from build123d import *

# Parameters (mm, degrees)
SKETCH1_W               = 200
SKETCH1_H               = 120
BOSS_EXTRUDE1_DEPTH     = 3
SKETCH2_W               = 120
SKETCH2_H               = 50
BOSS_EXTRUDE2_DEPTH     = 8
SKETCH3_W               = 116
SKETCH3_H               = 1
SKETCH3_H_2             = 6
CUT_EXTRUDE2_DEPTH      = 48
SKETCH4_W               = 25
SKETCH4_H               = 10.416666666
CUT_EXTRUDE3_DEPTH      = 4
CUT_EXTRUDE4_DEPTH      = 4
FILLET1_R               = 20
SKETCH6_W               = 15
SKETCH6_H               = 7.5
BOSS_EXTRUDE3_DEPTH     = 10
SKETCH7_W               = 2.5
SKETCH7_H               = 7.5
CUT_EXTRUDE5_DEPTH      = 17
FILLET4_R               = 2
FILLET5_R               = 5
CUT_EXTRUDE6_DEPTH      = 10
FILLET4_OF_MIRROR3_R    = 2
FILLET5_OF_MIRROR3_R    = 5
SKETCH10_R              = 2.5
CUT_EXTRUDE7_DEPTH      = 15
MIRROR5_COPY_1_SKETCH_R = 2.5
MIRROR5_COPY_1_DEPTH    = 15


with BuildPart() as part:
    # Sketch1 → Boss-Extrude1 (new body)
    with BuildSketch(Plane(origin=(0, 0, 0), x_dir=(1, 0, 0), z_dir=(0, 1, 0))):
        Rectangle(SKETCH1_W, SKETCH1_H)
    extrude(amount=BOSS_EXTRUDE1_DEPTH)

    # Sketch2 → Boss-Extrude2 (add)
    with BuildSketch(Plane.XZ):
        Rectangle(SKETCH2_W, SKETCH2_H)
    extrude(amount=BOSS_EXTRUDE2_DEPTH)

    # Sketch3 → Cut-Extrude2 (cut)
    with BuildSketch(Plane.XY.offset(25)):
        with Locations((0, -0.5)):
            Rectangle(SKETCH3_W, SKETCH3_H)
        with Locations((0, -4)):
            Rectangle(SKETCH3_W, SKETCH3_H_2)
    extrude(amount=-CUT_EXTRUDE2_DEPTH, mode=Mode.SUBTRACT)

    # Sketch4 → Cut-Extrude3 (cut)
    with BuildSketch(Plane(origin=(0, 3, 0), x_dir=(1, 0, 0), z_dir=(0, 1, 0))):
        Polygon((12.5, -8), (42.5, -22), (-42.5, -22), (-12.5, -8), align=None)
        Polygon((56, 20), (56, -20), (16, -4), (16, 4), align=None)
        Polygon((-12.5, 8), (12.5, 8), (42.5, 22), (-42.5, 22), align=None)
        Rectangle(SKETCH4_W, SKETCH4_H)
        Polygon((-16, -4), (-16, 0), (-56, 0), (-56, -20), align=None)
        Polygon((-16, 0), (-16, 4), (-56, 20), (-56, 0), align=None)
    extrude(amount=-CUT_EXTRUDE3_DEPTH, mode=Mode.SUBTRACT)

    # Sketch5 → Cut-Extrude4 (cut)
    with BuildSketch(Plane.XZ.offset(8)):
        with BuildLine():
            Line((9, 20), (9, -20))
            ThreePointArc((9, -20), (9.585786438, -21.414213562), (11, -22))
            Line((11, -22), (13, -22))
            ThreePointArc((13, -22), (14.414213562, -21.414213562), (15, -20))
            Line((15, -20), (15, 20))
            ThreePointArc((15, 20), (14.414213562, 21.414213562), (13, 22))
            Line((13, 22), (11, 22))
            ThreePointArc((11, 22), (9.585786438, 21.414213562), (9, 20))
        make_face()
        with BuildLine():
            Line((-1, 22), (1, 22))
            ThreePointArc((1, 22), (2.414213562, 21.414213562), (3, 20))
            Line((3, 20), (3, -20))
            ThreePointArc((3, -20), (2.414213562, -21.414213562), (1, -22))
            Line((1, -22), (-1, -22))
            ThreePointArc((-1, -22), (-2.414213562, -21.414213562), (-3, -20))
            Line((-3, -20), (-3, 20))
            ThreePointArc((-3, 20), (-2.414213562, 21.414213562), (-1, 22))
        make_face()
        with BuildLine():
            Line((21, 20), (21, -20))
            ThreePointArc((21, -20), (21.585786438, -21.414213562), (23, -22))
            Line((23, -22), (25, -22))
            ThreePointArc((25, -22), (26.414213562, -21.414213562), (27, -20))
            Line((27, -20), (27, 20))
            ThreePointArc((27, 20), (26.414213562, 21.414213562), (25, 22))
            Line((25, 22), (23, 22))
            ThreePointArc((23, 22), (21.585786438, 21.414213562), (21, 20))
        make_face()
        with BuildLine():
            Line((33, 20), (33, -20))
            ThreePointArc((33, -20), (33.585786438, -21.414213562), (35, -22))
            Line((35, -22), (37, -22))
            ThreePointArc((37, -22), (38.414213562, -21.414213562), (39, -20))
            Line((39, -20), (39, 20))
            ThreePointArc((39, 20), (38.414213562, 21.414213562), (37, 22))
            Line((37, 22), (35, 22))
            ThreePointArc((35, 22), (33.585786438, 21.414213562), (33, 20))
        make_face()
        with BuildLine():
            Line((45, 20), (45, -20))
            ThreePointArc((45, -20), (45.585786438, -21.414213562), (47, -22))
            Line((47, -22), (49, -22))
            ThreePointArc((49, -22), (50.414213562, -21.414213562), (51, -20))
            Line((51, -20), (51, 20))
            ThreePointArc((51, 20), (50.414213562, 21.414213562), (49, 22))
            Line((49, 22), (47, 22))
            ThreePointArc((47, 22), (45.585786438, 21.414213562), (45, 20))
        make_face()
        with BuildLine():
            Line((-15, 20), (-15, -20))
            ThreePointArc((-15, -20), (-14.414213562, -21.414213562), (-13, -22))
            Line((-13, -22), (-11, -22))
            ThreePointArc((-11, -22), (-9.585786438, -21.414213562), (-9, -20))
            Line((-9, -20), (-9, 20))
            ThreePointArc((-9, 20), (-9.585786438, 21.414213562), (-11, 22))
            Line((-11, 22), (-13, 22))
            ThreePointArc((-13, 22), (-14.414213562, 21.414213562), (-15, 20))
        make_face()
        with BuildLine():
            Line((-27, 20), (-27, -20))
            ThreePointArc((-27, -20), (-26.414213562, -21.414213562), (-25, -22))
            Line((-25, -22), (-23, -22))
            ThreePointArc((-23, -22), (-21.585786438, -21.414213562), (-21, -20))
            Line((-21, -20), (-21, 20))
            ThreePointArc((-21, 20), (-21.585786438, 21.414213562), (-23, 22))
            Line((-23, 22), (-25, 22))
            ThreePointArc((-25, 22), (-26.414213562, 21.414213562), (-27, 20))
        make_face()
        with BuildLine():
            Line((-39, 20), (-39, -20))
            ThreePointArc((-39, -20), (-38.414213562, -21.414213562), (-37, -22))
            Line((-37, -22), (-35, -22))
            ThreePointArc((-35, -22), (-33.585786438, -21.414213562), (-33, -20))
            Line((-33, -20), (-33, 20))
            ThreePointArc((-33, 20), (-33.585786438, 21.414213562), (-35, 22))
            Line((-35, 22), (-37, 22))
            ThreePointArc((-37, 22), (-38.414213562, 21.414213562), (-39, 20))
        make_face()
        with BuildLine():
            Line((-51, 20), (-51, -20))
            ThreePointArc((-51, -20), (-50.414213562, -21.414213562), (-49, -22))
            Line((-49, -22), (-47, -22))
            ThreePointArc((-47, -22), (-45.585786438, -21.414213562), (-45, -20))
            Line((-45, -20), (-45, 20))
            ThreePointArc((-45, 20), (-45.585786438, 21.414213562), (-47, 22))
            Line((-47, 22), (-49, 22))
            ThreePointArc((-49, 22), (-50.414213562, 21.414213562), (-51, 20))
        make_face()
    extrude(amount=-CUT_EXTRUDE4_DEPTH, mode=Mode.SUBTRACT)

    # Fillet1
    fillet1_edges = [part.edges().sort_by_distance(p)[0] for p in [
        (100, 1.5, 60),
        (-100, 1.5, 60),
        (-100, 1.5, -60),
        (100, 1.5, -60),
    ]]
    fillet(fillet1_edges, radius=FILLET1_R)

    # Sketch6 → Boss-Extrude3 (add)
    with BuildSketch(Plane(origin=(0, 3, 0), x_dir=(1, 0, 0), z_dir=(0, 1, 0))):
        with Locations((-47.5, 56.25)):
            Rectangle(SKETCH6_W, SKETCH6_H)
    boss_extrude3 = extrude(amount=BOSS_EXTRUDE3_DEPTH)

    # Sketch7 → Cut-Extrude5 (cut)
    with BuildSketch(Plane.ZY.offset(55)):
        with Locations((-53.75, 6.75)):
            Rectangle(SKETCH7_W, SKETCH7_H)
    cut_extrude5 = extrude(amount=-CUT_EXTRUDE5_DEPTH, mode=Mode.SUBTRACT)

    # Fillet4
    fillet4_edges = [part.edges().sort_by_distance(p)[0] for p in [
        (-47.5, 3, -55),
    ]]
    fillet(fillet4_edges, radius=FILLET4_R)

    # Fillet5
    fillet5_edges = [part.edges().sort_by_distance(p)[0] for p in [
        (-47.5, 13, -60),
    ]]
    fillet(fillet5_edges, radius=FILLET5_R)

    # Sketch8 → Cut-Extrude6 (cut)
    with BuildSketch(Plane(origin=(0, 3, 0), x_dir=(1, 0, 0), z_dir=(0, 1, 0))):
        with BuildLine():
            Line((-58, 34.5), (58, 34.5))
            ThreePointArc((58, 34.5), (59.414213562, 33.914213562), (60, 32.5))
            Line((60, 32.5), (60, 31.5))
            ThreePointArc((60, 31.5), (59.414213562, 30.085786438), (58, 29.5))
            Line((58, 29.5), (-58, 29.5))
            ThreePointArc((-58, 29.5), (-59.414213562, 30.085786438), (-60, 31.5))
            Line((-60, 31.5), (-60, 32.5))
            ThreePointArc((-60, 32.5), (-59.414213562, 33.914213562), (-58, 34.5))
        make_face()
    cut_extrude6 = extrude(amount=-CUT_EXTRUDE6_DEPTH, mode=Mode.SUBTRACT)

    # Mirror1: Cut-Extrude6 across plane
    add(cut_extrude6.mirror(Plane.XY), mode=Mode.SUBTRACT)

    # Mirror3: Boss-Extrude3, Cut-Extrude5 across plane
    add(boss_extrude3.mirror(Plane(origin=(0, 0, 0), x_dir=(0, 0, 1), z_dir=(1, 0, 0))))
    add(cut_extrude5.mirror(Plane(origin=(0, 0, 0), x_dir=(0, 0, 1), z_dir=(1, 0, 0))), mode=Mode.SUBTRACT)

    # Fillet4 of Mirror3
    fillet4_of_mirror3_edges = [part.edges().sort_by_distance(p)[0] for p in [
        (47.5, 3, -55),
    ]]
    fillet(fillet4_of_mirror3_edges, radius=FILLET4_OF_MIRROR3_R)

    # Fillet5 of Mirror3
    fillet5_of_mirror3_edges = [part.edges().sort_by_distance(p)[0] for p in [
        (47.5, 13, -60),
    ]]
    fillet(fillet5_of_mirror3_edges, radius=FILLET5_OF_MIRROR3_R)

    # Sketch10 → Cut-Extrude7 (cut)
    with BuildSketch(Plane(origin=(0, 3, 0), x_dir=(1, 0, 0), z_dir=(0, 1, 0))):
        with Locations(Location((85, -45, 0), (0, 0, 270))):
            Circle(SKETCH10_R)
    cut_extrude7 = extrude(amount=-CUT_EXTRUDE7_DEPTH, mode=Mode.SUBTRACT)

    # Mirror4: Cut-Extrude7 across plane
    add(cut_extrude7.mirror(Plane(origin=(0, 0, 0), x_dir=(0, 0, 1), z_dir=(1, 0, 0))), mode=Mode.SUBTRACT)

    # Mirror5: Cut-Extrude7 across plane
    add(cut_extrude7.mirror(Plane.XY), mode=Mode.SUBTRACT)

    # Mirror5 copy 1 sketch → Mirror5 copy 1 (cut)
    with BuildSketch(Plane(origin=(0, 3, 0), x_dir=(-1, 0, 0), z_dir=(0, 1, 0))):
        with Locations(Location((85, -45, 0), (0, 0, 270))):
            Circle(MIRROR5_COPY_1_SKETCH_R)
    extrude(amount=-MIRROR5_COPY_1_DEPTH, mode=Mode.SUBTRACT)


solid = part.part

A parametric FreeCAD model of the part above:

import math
import FreeCAD as App
import Part
import Sketcher
from FreeCAD import Vector


def edges_at(feature, points):
    """Names of the edges that pass closest to the given points."""
    edges = feature.Shape.Edges
    near = lambda p: min(range(len(edges)), key=lambda i: edges[i].distToShape(Part.Vertex(*p))[0])
    return sorted({f"Edge{near(p) + 1}" for p in points})

doc = App.newDocument("Part")
params = doc.addObject("Spreadsheet::Sheet", "Params")
for row, (alias, value) in enumerate([
    ("sketch1_width", "200 mm"),
    ("sketch1_height", "120 mm"),
    ("pad1_length", "3 mm"),
    ("sketch2_width", "120 mm"),
    ("sketch2_height", "50 mm"),
    ("pad2_length", "8 mm"),
    ("sketch3_width", "116 mm"),
    ("sketch3_height", "7 mm"),
    ("pocket1_length", "48 mm"),
    ("sketch4_width", "25 mm"),
    ("sketch4_width2", "85 mm"),
    ("sketch4_height", "40 mm"),
    ("sketch4_height2", "8 mm"),
    ("pocket2_length", "4 mm"),
    ("sketch5_radius", "2 mm"),
    ("sketch5_width", "2 mm"),
    ("sketch5_height", "40 mm"),
    ("pocket3_length", "4 mm"),
    ("fillet_radius", "20 mm"),
    ("sketch6_width", "15 mm"),
    ("sketch6_height", "7.5 mm"),
    ("pad3_length", "10 mm"),
    ("sketch7_width", "7.5 mm"),
    ("sketch7_height", "2.5 mm"),
    ("pocket4_length", "17 mm"),
    ("fillet2_radius", "2 mm"),
    ("fillet3_radius", "5 mm"),
    ("sketch8_radius", "2 mm"),
    ("sketch8_width", "116 mm"),
    ("sketch8_height", "1 mm"),
    ("pocket5_length", "10 mm"),
    ("fillet4_radius", "2 mm"),
    ("fillet5_radius", "5 mm"),
    ("sketch9_diameter", "5 mm"),
    ("pocket6_length", "15 mm"),
    ("sketch10_diameter", "5 mm"),
    ("pocket7_length", "15 mm"),
], start=1):
    params.set(f"A{row}", alias)
    params.set(f"B{row}", "=" + value)
    params.setAlias(f"B{row}", alias)

body = doc.addObject("PartDesign::Body", "Body")

# Sketch on XZ plane
sketch1 = body.newObject("Sketcher::SketchObject", "Sketch")
sketch1.AttachmentSupport = (doc.getObject("XZ_Plane"), [""])
sketch1.MapMode = "FlatFace"
sketch1.addGeometry([
    Part.LineSegment(Vector(-100, -60, 0), Vector(-100, 60, 0)),
    Part.LineSegment(Vector(-100, 60, 0), Vector(100, 60, 0)),
    Part.LineSegment(Vector(100, 60, 0), Vector(100, -60, 0)),
    Part.LineSegment(Vector(100, -60, 0), Vector(-100, -60, 0)),
], False)
sketch1.addConstraint([
    Sketcher.Constraint("Coincident", 0, 2, 1, 1),
    Sketcher.Constraint("Coincident", 1, 2, 2, 1),
    Sketcher.Constraint("Coincident", 2, 2, 3, 1),
    Sketcher.Constraint("Coincident", 3, 2, 0, 1),
    Sketcher.Constraint("Vertical", 0),
    Sketcher.Constraint("Horizontal", 1),
    Sketcher.Constraint("Vertical", 2),
    Sketcher.Constraint("Horizontal", 3),
    Sketcher.Constraint("Symmetric", 0, 2, 2, 2, -1, 1),
    Sketcher.Constraint("DistanceX", 1, 1, 1, 2, 200.0),
    Sketcher.Constraint("DistanceY", 0, 1, 0, 2, 120.0),
])
sketch1.setExpression("Constraints[9]", "Params.sketch1_width")
sketch1.setExpression("Constraints[10]", "Params.sketch1_height")
pad1 = body.newObject("PartDesign::Pad", "Pad")
pad1.Profile = sketch1
pad1.setExpression("Length", "Params.pad1_length")
pad1.Reversed = True

# Sketch on XZ plane
sketch2 = body.newObject("Sketcher::SketchObject", "Sketch001")
sketch2.AttachmentSupport = (doc.getObject("XZ_Plane"), [""])
sketch2.MapMode = "FlatFace"
sketch2.addGeometry([
    Part.LineSegment(Vector(-60, 25, 0), Vector(-60, -25, 0)),
    Part.LineSegment(Vector(-60, -25, 0), Vector(60, -25, 0)),
    Part.LineSegment(Vector(60, -25, 0), Vector(60, 25, 0)),
    Part.LineSegment(Vector(60, 25, 0), Vector(-60, 25, 0)),
], False)
sketch2.addConstraint([
    Sketcher.Constraint("Coincident", 0, 2, 1, 1),
    Sketcher.Constraint("Coincident", 1, 2, 2, 1),
    Sketcher.Constraint("Coincident", 2, 2, 3, 1),
    Sketcher.Constraint("Coincident", 3, 2, 0, 1),
    Sketcher.Constraint("Vertical", 0),
    Sketcher.Constraint("Horizontal", 1),
    Sketcher.Constraint("Vertical", 2),
    Sketcher.Constraint("Horizontal", 3),
    Sketcher.Constraint("Symmetric", 0, 2, 2, 2, -1, 1),
    Sketcher.Constraint("DistanceX", 1, 1, 1, 2, 120.0),
    Sketcher.Constraint("DistanceY", 0, 2, 0, 1, 50.0),
])
sketch2.setExpression("Constraints[9]", "Params.sketch2_width")
sketch2.setExpression("Constraints[10]", "Params.sketch2_height")
pad2 = body.newObject("PartDesign::Pad", "Pad001")
pad2.Profile = sketch2
pad2.setExpression("Length", "Params.pad2_length")

# Sketch on XY plane
sketch3 = body.newObject("Sketcher::SketchObject", "Sketch002")
sketch3.AttachmentSupport = (doc.getObject("XY_Plane"), [""])
sketch3.MapMode = "FlatFace"
sketch3.AttachmentOffset = App.Placement(Vector(0, 0, 25), App.Rotation())
sketch3.addGeometry([
    Part.LineSegment(Vector(-58, 0, 0), Vector(-58, -7, 0)),
    Part.LineSegment(Vector(-58, -7, 0), Vector(58, -7, 0)),
    Part.LineSegment(Vector(58, -7, 0), Vector(58, 0, 0)),
    Part.LineSegment(Vector(58, 0, 0), Vector(-58, 0, 0)),
], False)
sketch3.addConstraint([
    Sketcher.Constraint("Coincident", 0, 2, 1, 1),
    Sketcher.Constraint("Coincident", 1, 2, 2, 1),
    Sketcher.Constraint("Coincident", 2, 2, 3, 1),
    Sketcher.Constraint("Coincident", 3, 2, 0, 1),
    Sketcher.Constraint("Vertical", 0),
    Sketcher.Constraint("Horizontal", 1),
    Sketcher.Constraint("Vertical", 2),
    Sketcher.Constraint("Horizontal", 3),
    Sketcher.Constraint("Symmetric", 2, 2, 3, 2, -1, 1),
    Sketcher.Constraint("DistanceX", 1, 1, 1, 2, 116.0),
    Sketcher.Constraint("DistanceY", 0, 2, 0, 1, 7.0),
])
sketch3.setExpression("Constraints[9]", "Params.sketch3_width")
sketch3.setExpression("Constraints[10]", "Params.sketch3_height")
pocket1 = body.newObject("PartDesign::Pocket", "Pocket")
pocket1.Profile = sketch3
pocket1.setExpression("Length", "Params.pocket1_length")

# Sketch on XZ plane
sketch4 = body.newObject("Sketcher::SketchObject", "Sketch003")
sketch4.AttachmentSupport = (doc.getObject("XZ_Plane"), [""])
sketch4.MapMode = "FlatFace"
sketch4.AttachmentOffset = App.Placement(Vector(0, 0, -3), App.Rotation())
sketch4.addGeometry([
    Part.LineSegment(Vector(42, 22, 0), Vector(12, 8, 0)),  # 0
    Part.LineSegment(Vector(12, 8, 0), Vector(-12, 8, 0)),  # 1
    Part.LineSegment(Vector(-12, 8, 0), Vector(-42, 22, 0)),  # 2
    Part.LineSegment(Vector(-42, 22, 0), Vector(42, 22, 0)),  # 3
    Part.LineSegment(Vector(56, 20, 0), Vector(56, -20, 0)),  # 4
    Part.LineSegment(Vector(56, -20, 0), Vector(16, -4, 0)),  # 5
    Part.LineSegment(Vector(16, -4, 0), Vector(16, 4, 0)),  # 6
    Part.LineSegment(Vector(16, 4, 0), Vector(56, 20, 0)),  # 7
    Part.LineSegment(Vector(-12, -8, 0), Vector(12, -8, 0)),  # 8
    Part.LineSegment(Vector(12, -8, 0), Vector(42, -22, 0)),  # 9
    Part.LineSegment(Vector(42, -22, 0), Vector(-42, -22, 0)),  # 10
    Part.LineSegment(Vector(-42, -22, 0), Vector(-12, -8, 0)),  # 11
    Part.LineSegment(Vector(-12, -5, 0), Vector(-12, 5, 0)),  # 12
    Part.LineSegment(Vector(-12, 5, 0), Vector(12, 5, 0)),  # 13
    Part.LineSegment(Vector(12, 5, 0), Vector(12, -5, 0)),  # 14
    Part.LineSegment(Vector(12, -5, 0), Vector(-12, -5, 0)),  # 15
    Part.LineSegment(Vector(-16, 4, 0), Vector(-16, -4, 0)),  # 16
    Part.LineSegment(Vector(-16, -4, 0), Vector(-56, -20, 0)),  # 17
    Part.LineSegment(Vector(-56, -20, 0), Vector(-56, 20, 0)),  # 18
    Part.LineSegment(Vector(-56, 20, 0), Vector(-16, 4, 0)),  # 19
], False)
sketch4.addConstraint([
    Sketcher.Constraint("Coincident", 0, 2, 1, 1),
    Sketcher.Constraint("Coincident", 1, 2, 2, 1),
    Sketcher.Constraint("Coincident", 2, 2, 3, 1),
    Sketcher.Constraint("Coincident", 3, 2, 0, 1),
    Sketcher.Constraint("Coincident", 4, 2, 5, 1),
    Sketcher.Constraint("Coincident", 5, 2, 6, 1),
    Sketcher.Constraint("Coincident", 6, 2, 7, 1),
    Sketcher.Constraint("Coincident", 7, 2, 4, 1),
    Sketcher.Constraint("Coincident", 8, 2, 9, 1),
    Sketcher.Constraint("Coincident", 9, 2, 10, 1),
    Sketcher.Constraint("Coincident", 10, 2, 11, 1),
    Sketcher.Constraint("Coincident", 11, 2, 8, 1),
    Sketcher.Constraint("Coincident", 12, 2, 13, 1),
    Sketcher.Constraint("Coincident", 13, 2, 14, 1),
    Sketcher.Constraint("Coincident", 14, 2, 15, 1),
    Sketcher.Constraint("Coincident", 15, 2, 12, 1),
    Sketcher.Constraint("Coincident", 16, 2, 17, 1),
    Sketcher.Constraint("Coincident", 17, 2, 18, 1),
    Sketcher.Constraint("Coincident", 18, 2, 19, 1),
    Sketcher.Constraint("Coincident", 19, 2, 16, 1),
    Sketcher.Constraint("Horizontal", 1),
    Sketcher.Constraint("Horizontal", 3),
    Sketcher.Constraint("Vertical", 4),
    Sketcher.Constraint("Vertical", 6),
    Sketcher.Constraint("Horizontal", 8),
    Sketcher.Constraint("Horizontal", 10),
    Sketcher.Constraint("Vertical", 12),
    Sketcher.Constraint("Horizontal", 13),
    Sketcher.Constraint("Vertical", 14),
    Sketcher.Constraint("Horizontal", 15),
    Sketcher.Constraint("Vertical", 16),
    Sketcher.Constraint("Vertical", 18),
    Sketcher.Constraint("Symmetric", 1, 2, 8, 2, -1, 1),
    Sketcher.Constraint("Symmetric", 2, 2, 9, 2, -1, 1),
    Sketcher.Constraint("Symmetric", 12, 2, 14, 2, -1, 1),
    Sketcher.Constraint("Symmetric", 6, 2, 16, 2, -1, 1),
    Sketcher.Constraint("Symmetric", 7, 2, 17, 2, -1, 1),
    Sketcher.Constraint("Parallel", 0, 11),
    Sketcher.Constraint("Parallel", 5, 19),
    Sketcher.Constraint("Horizontal", 5, 2, 16, 2),
    Sketcher.Constraint("Horizontal", 4, 2, 17, 2),
    Sketcher.Constraint("Horizontal", 7, 2, 18, 2),
    Sketcher.Constraint("Vertical", 0, 2, 8, 2),
    Sketcher.Constraint("Vertical", 3, 2, 9, 2),
    Sketcher.Constraint("Vertical", 2, 2, 10, 2),
    Sketcher.Constraint("Vertical", 11, 2, 12, 2),
    Sketcher.Constraint("DistanceX", 1, 2, 1, 1, 25.0),
    Sketcher.Constraint("DistanceX", 3, 1, 3, 2, 85.0),
    Sketcher.Constraint("DistanceY", 4, 2, 4, 1, 40.0),
    Sketcher.Constraint("DistanceY", 6, 1, 6, 2, 8.0),
    Sketcher.Constraint("DistanceY", -1, 1, 0, 2, 8.0),
    Sketcher.Constraint("DistanceY", -1, 1, 2, 2, 22.0),
    Sketcher.Constraint("DistanceX", -1, 1, 4, 2, 56.0),
    Sketcher.Constraint("DistanceX", -1, 1, 5, 2, 16.0),
    Sketcher.Constraint("DistanceY", 12, 1, 12, 2, 10.416667),
])
sketch4.setExpression("Constraints[46]", "Params.sketch4_width")
sketch4.setExpression("Constraints[47]", "Params.sketch4_width2")
sketch4.setExpression("Constraints[48]", "Params.sketch4_height")
sketch4.setExpression("Constraints[49]", "Params.sketch4_height2")
pocket2 = body.newObject("PartDesign::Pocket", "Pocket001")
pocket2.Profile = sketch4
pocket2.setExpression("Length", "Params.pocket2_length")
pocket2.Reversed = True

# Sketch on XZ plane
sketch5 = body.newObject("Sketcher::SketchObject", "Sketch004")
sketch5.AttachmentSupport = (doc.getObject("XZ_Plane"), [""])
sketch5.MapMode = "FlatFace"
sketch5.AttachmentOffset = App.Placement(Vector(0, 0, 8), App.Rotation())
sketch5.addGeometry([
    Part.LineSegment(Vector(9, 20, 0), Vector(9, -20, 0)),  # 0
    Part.ArcOfCircle(Part.Circle(Vector(11, -20, 0), Vector(0, 0, 1), 2), math.radians(-180), math.radians(-90)),  # 1
    Part.LineSegment(Vector(11, -22, 0), Vector(13, -22, 0)),  # 2
    Part.ArcOfCircle(Part.Circle(Vector(13, -20, 0), Vector(0, 0, 1), 2), math.radians(-90), math.radians(0)),  # 3
    Part.LineSegment(Vector(15, -20, 0), Vector(15, 20, 0)),  # 4
    Part.ArcOfCircle(Part.Circle(Vector(13, 20, 0), Vector(0, 0, 1), 2), math.radians(0), math.radians(90)),  # 5
    Part.LineSegment(Vector(13, 22, 0), Vector(11, 22, 0)),  # 6
    Part.ArcOfCircle(Part.Circle(Vector(11, 20, 0), Vector(0, 0, 1), 2), math.radians(90), math.radians(180)),  # 7
    Part.LineSegment(Vector(1, 22, 0), Vector(-1, 22, 0)),  # 8
    Part.ArcOfCircle(Part.Circle(Vector(-1, 20, 0), Vector(0, 0, 1), 2), math.radians(90), math.radians(180)),  # 9
    Part.LineSegment(Vector(-3, 20, 0), Vector(-3, -20, 0)),  # 10
    Part.ArcOfCircle(Part.Circle(Vector(-1, -20, 0), Vector(0, 0, 1), 2), math.radians(-180), math.radians(-90)),  # 11
    Part.LineSegment(Vector(-1, -22, 0), Vector(1, -22, 0)),  # 12
    Part.ArcOfCircle(Part.Circle(Vector(1, -20, 0), Vector(0, 0, 1), 2), math.radians(-90), math.radians(0)),  # 13
    Part.LineSegment(Vector(3, -20, 0), Vector(3, 20, 0)),  # 14
    Part.ArcOfCircle(Part.Circle(Vector(1, 20, 0), Vector(0, 0, 1), 2), math.radians(0), math.radians(90)),  # 15
    Part.LineSegment(Vector(21, 20, 0), Vector(21, -20, 0)),  # 16
    Part.ArcOfCircle(Part.Circle(Vector(23, -20, 0), Vector(0, 0, 1), 2), math.radians(-180), math.radians(-90)),  # 17
    Part.LineSegment(Vector(23, -22, 0), Vector(25, -22, 0)),  # 18
    Part.ArcOfCircle(Part.Circle(Vector(25, -20, 0), Vector(0, 0, 1), 2), math.radians(-90), math.radians(0)),  # 19
    Part.LineSegment(Vector(27, -20, 0), Vector(27, 20, 0)),  # 20
    Part.ArcOfCircle(Part.Circle(Vector(25, 20, 0), Vector(0, 0, 1), 2), math.radians(0), math.radians(90)),  # 21
    Part.LineSegment(Vector(25, 22, 0), Vector(23, 22, 0)),  # 22
    Part.ArcOfCircle(Part.Circle(Vector(23, 20, 0), Vector(0, 0, 1), 2), math.radians(90), math.radians(180)),  # 23
    Part.LineSegment(Vector(33, 20, 0), Vector(33, -20, 0)),  # 24
    Part.ArcOfCircle(Part.Circle(Vector(35, -20, 0), Vector(0, 0, 1), 2), math.radians(-180), math.radians(-90)),  # 25
    Part.LineSegment(Vector(35, -22, 0), Vector(37, -22, 0)),  # 26
    Part.ArcOfCircle(Part.Circle(Vector(37, -20, 0), Vector(0, 0, 1), 2), math.radians(-90), math.radians(0)),  # 27
    Part.LineSegment(Vector(39, -20, 0), Vector(39, 20, 0)),  # 28
    Part.ArcOfCircle(Part.Circle(Vector(37, 20, 0), Vector(0, 0, 1), 2), math.radians(0), math.radians(90)),  # 29
    Part.LineSegment(Vector(37, 22, 0), Vector(35, 22, 0)),  # 30
    Part.ArcOfCircle(Part.Circle(Vector(35, 20, 0), Vector(0, 0, 1), 2), math.radians(90), math.radians(180)),  # 31
    Part.LineSegment(Vector(45, 20, 0), Vector(45, -20, 0)),  # 32
    Part.ArcOfCircle(Part.Circle(Vector(47, -20, 0), Vector(0, 0, 1), 2), math.radians(-180), math.radians(-90)),  # 33
    Part.LineSegment(Vector(47, -22, 0), Vector(49, -22, 0)),  # 34
    Part.ArcOfCircle(Part.Circle(Vector(49, -20, 0), Vector(0, 0, 1), 2), math.radians(-90), math.radians(0)),  # 35
    Part.LineSegment(Vector(51, -20, 0), Vector(51, 20, 0)),  # 36
    Part.ArcOfCircle(Part.Circle(Vector(49, 20, 0), Vector(0, 0, 1), 2), math.radians(0), math.radians(90)),  # 37
    Part.LineSegment(Vector(49, 22, 0), Vector(47, 22, 0)),  # 38
    Part.ArcOfCircle(Part.Circle(Vector(47, 20, 0), Vector(0, 0, 1), 2), math.radians(90), math.radians(180)),  # 39
    Part.LineSegment(Vector(-15, 20, 0), Vector(-15, -20, 0)),  # 40
    Part.ArcOfCircle(Part.Circle(Vector(-13, -20, 0), Vector(0, 0, 1), 2), math.radians(-180), math.radians(-90)),  # 41
    Part.LineSegment(Vector(-13, -22, 0), Vector(-11, -22, 0)),  # 42
    Part.ArcOfCircle(Part.Circle(Vector(-11, -20, 0), Vector(0, 0, 1), 2), math.radians(-90), math.radians(0)),  # 43
    Part.LineSegment(Vector(-9, -20, 0), Vector(-9, 20, 0)),  # 44
    Part.ArcOfCircle(Part.Circle(Vector(-11, 20, 0), Vector(0, 0, 1), 2), math.radians(0), math.radians(90)),  # 45
    Part.LineSegment(Vector(-11, 22, 0), Vector(-13, 22, 0)),  # 46
    Part.ArcOfCircle(Part.Circle(Vector(-13, 20, 0), Vector(0, 0, 1), 2), math.radians(90), math.radians(180)),  # 47
    Part.LineSegment(Vector(-27, 20, 0), Vector(-27, -20, 0)),  # 48
    Part.ArcOfCircle(Part.Circle(Vector(-25, -20, 0), Vector(0, 0, 1), 2), math.radians(-180), math.radians(-90)),  # 49
    Part.LineSegment(Vector(-25, -22, 0), Vector(-23, -22, 0)),  # 50
    Part.ArcOfCircle(Part.Circle(Vector(-23, -20, 0), Vector(0, 0, 1), 2), math.radians(-90), math.radians(0)),  # 51
    Part.LineSegment(Vector(-21, -20, 0), Vector(-21, 20, 0)),  # 52
    Part.ArcOfCircle(Part.Circle(Vector(-23, 20, 0), Vector(0, 0, 1), 2), math.radians(0), math.radians(90)),  # 53
    Part.LineSegment(Vector(-23, 22, 0), Vector(-25, 22, 0)),  # 54
    Part.ArcOfCircle(Part.Circle(Vector(-25, 20, 0), Vector(0, 0, 1), 2), math.radians(90), math.radians(180)),  # 55
    Part.LineSegment(Vector(-39, 20, 0), Vector(-39, -20, 0)),  # 56
    Part.ArcOfCircle(Part.Circle(Vector(-37, -20, 0), Vector(0, 0, 1), 2), math.radians(-180), math.radians(-90)),  # 57
    Part.LineSegment(Vector(-37, -22, 0), Vector(-35, -22, 0)),  # 58
    Part.ArcOfCircle(Part.Circle(Vector(-35, -20, 0), Vector(0, 0, 1), 2), math.radians(-90), math.radians(0)),  # 59
    Part.LineSegment(Vector(-33, -20, 0), Vector(-33, 20, 0)),  # 60
    Part.ArcOfCircle(Part.Circle(Vector(-35, 20, 0), Vector(0, 0, 1), 2), math.radians(0), math.radians(90)),  # 61
    Part.LineSegment(Vector(-35, 22, 0), Vector(-37, 22, 0)),  # 62
    Part.ArcOfCircle(Part.Circle(Vector(-37, 20, 0), Vector(0, 0, 1), 2), math.radians(90), math.radians(180)),  # 63
    Part.LineSegment(Vector(-51, 20, 0), Vector(-51, -20, 0)),  # 64
    Part.ArcOfCircle(Part.Circle(Vector(-49, -20, 0), Vector(0, 0, 1), 2), math.radians(-180), math.radians(-90)),  # 65
    Part.LineSegment(Vector(-49, -22, 0), Vector(-47, -22, 0)),  # 66
    Part.ArcOfCircle(Part.Circle(Vector(-47, -20, 0), Vector(0, 0, 1), 2), math.radians(-90), math.radians(0)),  # 67
    Part.LineSegment(Vector(-45, -20, 0), Vector(-45, 20, 0)),  # 68
    Part.ArcOfCircle(Part.Circle(Vector(-47, 20, 0), Vector(0, 0, 1), 2), math.radians(0), math.radians(90)),  # 69
    Part.LineSegment(Vector(-47, 22, 0), Vector(-49, 22, 0)),  # 70
    Part.ArcOfCircle(Part.Circle(Vector(-49, 20, 0), Vector(0, 0, 1), 2), math.radians(90), math.radians(180)),  # 71
], False)
sketch5.addConstraint([
    Sketcher.Constraint("Tangent", 0, 2, 1, 1),
    Sketcher.Constraint("Tangent", 1, 2, 2, 1),
    Sketcher.Constraint("Tangent", 2, 2, 3, 1),
    Sketcher.Constraint("Tangent", 3, 2, 4, 1),
    Sketcher.Constraint("Tangent", 4, 2, 5, 1),
    Sketcher.Constraint("Tangent", 5, 2, 6, 1),
    Sketcher.Constraint("Tangent", 6, 2, 7, 1),
    Sketcher.Constraint("Tangent", 7, 2, 0, 1),
    Sketcher.Constraint("Tangent", 8, 2, 9, 1),
    Sketcher.Constraint("Tangent", 9, 2, 10, 1),
    Sketcher.Constraint("Tangent", 10, 2, 11, 1),
    Sketcher.Constraint("Tangent", 11, 2, 12, 1),
    Sketcher.Constraint("Tangent", 12, 2, 13, 1),
    Sketcher.Constraint("Tangent", 13, 2, 14, 1),
    Sketcher.Constraint("Tangent", 14, 2, 15, 1),
    Sketcher.Constraint("Tangent", 15, 2, 8, 1),
    Sketcher.Constraint("Tangent", 16, 2, 17, 1),
    Sketcher.Constraint("Tangent", 17, 2, 18, 1),
    Sketcher.Constraint("Tangent", 18, 2, 19, 1),
    Sketcher.Constraint("Tangent", 19, 2, 20, 1),
    Sketcher.Constraint("Tangent", 20, 2, 21, 1),
    Sketcher.Constraint("Tangent", 21, 2, 22, 1),
    Sketcher.Constraint("Tangent", 22, 2, 23, 1),
    Sketcher.Constraint("Tangent", 23, 2, 16, 1),
    Sketcher.Constraint("Tangent", 24, 2, 25, 1),
    Sketcher.Constraint("Tangent", 25, 2, 26, 1),
    Sketcher.Constraint("Tangent", 26, 2, 27, 1),
    Sketcher.Constraint("Tangent", 27, 2, 28, 1),
    Sketcher.Constraint("Tangent", 28, 2, 29, 1),
    Sketcher.Constraint("Tangent", 29, 2, 30, 1),
    Sketcher.Constraint("Tangent", 30, 2, 31, 1),
    Sketcher.Constraint("Tangent", 31, 2, 24, 1),
    Sketcher.Constraint("Tangent", 32, 2, 33, 1),
    Sketcher.Constraint("Tangent", 33, 2, 34, 1),
    Sketcher.Constraint("Tangent", 34, 2, 35, 1),
    Sketcher.Constraint("Tangent", 35, 2, 36, 1),
    Sketcher.Constraint("Tangent", 36, 2, 37, 1),
    Sketcher.Constraint("Tangent", 37, 2, 38, 1),
    Sketcher.Constraint("Tangent", 38, 2, 39, 1),
    Sketcher.Constraint("Tangent", 39, 2, 32, 1),
    Sketcher.Constraint("Tangent", 40, 2, 41, 1),
    Sketcher.Constraint("Tangent", 41, 2, 42, 1),
    Sketcher.Constraint("Tangent", 42, 2, 43, 1),
    Sketcher.Constraint("Tangent", 43, 2, 44, 1),
    Sketcher.Constraint("Tangent", 44, 2, 45, 1),
    Sketcher.Constraint("Tangent", 45, 2, 46, 1),
    Sketcher.Constraint("Tangent", 46, 2, 47, 1),
    Sketcher.Constraint("Tangent", 47, 2, 40, 1),
    Sketcher.Constraint("Tangent", 48, 2, 49, 1),
    Sketcher.Constraint("Tangent", 49, 2, 50, 1),
    Sketcher.Constraint("Tangent", 50, 2, 51, 1),
    Sketcher.Constraint("Tangent", 51, 2, 52, 1),
    Sketcher.Constraint("Tangent", 52, 2, 53, 1),
    Sketcher.Constraint("Tangent", 53, 2, 54, 1),
    Sketcher.Constraint("Tangent", 54, 2, 55, 1),
    Sketcher.Constraint("Tangent", 55, 2, 48, 1),
    Sketcher.Constraint("Tangent", 56, 2, 57, 1),
    Sketcher.Constraint("Tangent", 57, 2, 58, 1),
    Sketcher.Constraint("Tangent", 58, 2, 59, 1),
    Sketcher.Constraint("Tangent", 59, 2, 60, 1),
    Sketcher.Constraint("Tangent", 60, 2, 61, 1),
    Sketcher.Constraint("Tangent", 61, 2, 62, 1),
    Sketcher.Constraint("Tangent", 62, 2, 63, 1),
    Sketcher.Constraint("Tangent", 63, 2, 56, 1),
    Sketcher.Constraint("Tangent", 64, 2, 65, 1),
    Sketcher.Constraint("Tangent", 65, 2, 66, 1),
    Sketcher.Constraint("Tangent", 66, 2, 67, 1),
    Sketcher.Constraint("Tangent", 67, 2, 68, 1),
    Sketcher.Constraint("Tangent", 68, 2, 69, 1),
    Sketcher.Constraint("Tangent", 69, 2, 70, 1),
    Sketcher.Constraint("Tangent", 70, 2, 71, 1),
    Sketcher.Constraint("Tangent", 71, 2, 64, 1),
    Sketcher.Constraint("Vertical", 0),
    Sketcher.Constraint("Horizontal", 2),
    Sketcher.Constraint("Vertical", 4),
    Sketcher.Constraint("Horizontal", 6),
    Sketcher.Constraint("Horizontal", 8),
    Sketcher.Constraint("Vertical", 10),
    Sketcher.Constraint("Horizontal", 12),
    Sketcher.Constraint("Vertical", 14),
    Sketcher.Constraint("Vertical", 16),
    Sketcher.Constraint("Horizontal", 18),
    Sketcher.Constraint("Vertical", 20),
    Sketcher.Constraint("Horizontal", 22),
    Sketcher.Constraint("Vertical", 24),
    Sketcher.Constraint("Horizontal", 26),
    Sketcher.Constraint("Vertical", 28),
    Sketcher.Constraint("Horizontal", 30),
    Sketcher.Constraint("Vertical", 32),
    Sketcher.Constraint("Horizontal", 34),
    Sketcher.Constraint("Vertical", 36),
    Sketcher.Constraint("Horizontal", 38),
    Sketcher.Constraint("Vertical", 40),
    Sketcher.Constraint("Horizontal", 42),
    Sketcher.Constraint("Vertical", 44),
    Sketcher.Constraint("Horizontal", 46),
    Sketcher.Constraint("Vertical", 48),
    Sketcher.Constraint("Horizontal", 50),
    Sketcher.Constraint("Vertical", 52),
    Sketcher.Constraint("Horizontal", 54),
    Sketcher.Constraint("Vertical", 56),
    Sketcher.Constraint("Horizontal", 58),
    Sketcher.Constraint("Vertical", 60),
    Sketcher.Constraint("Horizontal", 62),
    Sketcher.Constraint("Vertical", 64),
    Sketcher.Constraint("Horizontal", 66),
    Sketcher.Constraint("Vertical", 68),
    Sketcher.Constraint("Horizontal", 70),
    Sketcher.Constraint("Equal", 1, 3),
    Sketcher.Constraint("Equal", 3, 5),
    Sketcher.Constraint("Equal", 5, 7),
    Sketcher.Constraint("Equal", 7, 9),
    Sketcher.Constraint("Equal", 9, 11),
    Sketcher.Constraint("Equal", 11, 13),
    Sketcher.Constraint("Equal", 13, 15),
    Sketcher.Constraint("Equal", 15, 17),
    Sketcher.Constraint("Equal", 17, 19),
    Sketcher.Constraint("Equal", 19, 21),
    Sketcher.Constraint("Equal", 21, 23),
    Sketcher.Constraint("Equal", 23, 25),
    Sketcher.Constraint("Equal", 25, 27),
    Sketcher.Constraint("Equal", 27, 29),
    Sketcher.Constraint("Equal", 29, 31),
    Sketcher.Constraint("Equal", 31, 33),
    Sketcher.Constraint("Equal", 33, 35),
    Sketcher.Constraint("Equal", 35, 37),
    Sketcher.Constraint("Equal", 37, 39),
    Sketcher.Constraint("Equal", 39, 41),
    Sketcher.Constraint("Equal", 41, 43),
    Sketcher.Constraint("Equal", 43, 45),
    Sketcher.Constraint("Equal", 45, 47),
    Sketcher.Constraint("Equal", 47, 49),
    Sketcher.Constraint("Equal", 49, 51),
    Sketcher.Constraint("Equal", 51, 53),
    Sketcher.Constraint("Equal", 53, 55),
    Sketcher.Constraint("Equal", 55, 57),
    Sketcher.Constraint("Equal", 57, 59),
    Sketcher.Constraint("Equal", 59, 61),
    Sketcher.Constraint("Equal", 61, 63),
    Sketcher.Constraint("Equal", 63, 65),
    Sketcher.Constraint("Equal", 65, 67),
    Sketcher.Constraint("Equal", 67, 69),
    Sketcher.Constraint("Equal", 69, 71),
    Sketcher.Constraint("Symmetric", 9, 3, 13, 3, -1, 1),
    Sketcher.Constraint("Symmetric", 5, 3, 41, 3, -1, 1),
    Sketcher.Constraint("Symmetric", 1, 3, 45, 3, -1, 1),
    Sketcher.Constraint("Symmetric", 21, 3, 49, 3, -1, 1),
    Sketcher.Constraint("Symmetric", 17, 3, 53, 3, -1, 1),
    Sketcher.Constraint("Symmetric", 29, 3, 57, 3, -1, 1),
    Sketcher.Constraint("Symmetric", 25, 3, 61, 3, -1, 1),
    Sketcher.Constraint("Symmetric", 37, 3, 65, 3, -1, 1),
    Sketcher.Constraint("Symmetric", 33, 3, 69, 3, -1, 1),
    Sketcher.Constraint("Horizontal", 7, 3, 9, 3),
    Sketcher.Constraint("Horizontal", 3, 3, 11, 3),
    Sketcher.Constraint("Horizontal", 13, 3, 17, 3),
    Sketcher.Constraint("Horizontal", 15, 3, 21, 3),
    Sketcher.Constraint("Horizontal", 19, 3, 25, 3),
    Sketcher.Constraint("Horizontal", 23, 3, 29, 3),
    Sketcher.Constraint("Horizontal", 27, 3, 33, 3),
    Sketcher.Constraint("Horizontal", 31, 3, 37, 3),
    Sketcher.Constraint("Equal", 6, 8),
    Sketcher.Constraint("Equal", 12, 18),
    Sketcher.Constraint("Equal", 22, 26),
    Sketcher.Constraint("Equal", 30, 34),
    Sketcher.Constraint("Radius", 1, 2.0),
    Sketcher.Constraint("DistanceX", 2, 1, 2, 2, 2.0),
    Sketcher.Constraint("DistanceY", 0, 2, 0, 1, 40.0),
    Sketcher.Constraint("DistanceX", -1, 1, 1, 3, 11.0),
    Sketcher.Constraint("DistanceX", -1, 1, 17, 3, 23.0),
    Sketcher.Constraint("DistanceX", -1, 1, 25, 3, 35.0),
    Sketcher.Constraint("DistanceX", -1, 1, 33, 3, 47.0),
])
sketch5.setExpression("Constraints[164]", "Params.sketch5_radius")
sketch5.setExpression("Constraints[165]", "Params.sketch5_width")
sketch5.setExpression("Constraints[166]", "Params.sketch5_height")
pocket3 = body.newObject("PartDesign::Pocket", "Pocket002")
pocket3.Profile = sketch5
pocket3.setExpression("Length", "Params.pocket3_length")
doc.recompute()

fillet = body.newObject("PartDesign::Fillet", "Fillet")
fillet.Base = (pocket3, edges_at(pocket3, [
    (100, 1.5, 60),
    (-100, 1.5, 60),
    (-100, 1.5, -60),
    (100, 1.5, -60),
]))
fillet.setExpression("Radius", "Params.fillet_radius")

# Sketch on XZ plane
sketch6 = body.newObject("Sketcher::SketchObject", "Sketch005")
sketch6.AttachmentSupport = (doc.getObject("XZ_Plane"), [""])
sketch6.MapMode = "FlatFace"
sketch6.AttachmentOffset = App.Placement(Vector(0, 0, -3), App.Rotation())
sketch6.addGeometry([
    Part.LineSegment(Vector(-55, -60, 0), Vector(-55, -52, 0)),
    Part.LineSegment(Vector(-55, -52, 0), Vector(-40, -52, 0)),
    Part.LineSegment(Vector(-40, -52, 0), Vector(-40, -60, 0)),
    Part.LineSegment(Vector(-40, -60, 0), Vector(-55, -60, 0)),
], False)
sketch6.addConstraint([
    Sketcher.Constraint("Coincident", 0, 2, 1, 1),
    Sketcher.Constraint("Coincident", 1, 2, 2, 1),
    Sketcher.Constraint("Coincident", 2, 2, 3, 1),
    Sketcher.Constraint("Coincident", 3, 2, 0, 1),
    Sketcher.Constraint("Vertical", 0),
    Sketcher.Constraint("Horizontal", 1),
    Sketcher.Constraint("Vertical", 2),
    Sketcher.Constraint("Horizontal", 3),
    Sketcher.Constraint("DistanceX", 1, 1, 1, 2, 15.0),
    Sketcher.Constraint("DistanceY", 0, 1, 0, 2, 7.5),
    Sketcher.Constraint("DistanceX", 0, 2, -1, 1, 55.0),
    Sketcher.Constraint("DistanceY", 2, 2, -1, 1, 60.0),
])
sketch6.setExpression("Constraints[8]", "Params.sketch6_width")
sketch6.setExpression("Constraints[9]", "Params.sketch6_height")
pad3 = body.newObject("PartDesign::Pad", "Pad002")
pad3.Profile = sketch6
pad3.setExpression("Length", "Params.pad3_length")
pad3.Reversed = True

# Sketch on YZ plane
sketch7 = body.newObject("Sketcher::SketchObject", "Sketch006")
sketch7.AttachmentSupport = (doc.getObject("YZ_Plane"), [""])
sketch7.MapMode = "FlatFace"
sketch7.AttachmentOffset = App.Placement(Vector(0, 0, -55), App.Rotation())
sketch7.addGeometry([
    Part.LineSegment(Vector(10.5, -55, 0), Vector(3, -55, 0)),
    Part.LineSegment(Vector(3, -55, 0), Vector(3, -52.5, 0)),
    Part.LineSegment(Vector(3, -52.5, 0), Vector(10.5, -52.5, 0)),
    Part.LineSegment(Vector(10.5, -52.5, 0), Vector(10.5, -55, 0)),
], False)
sketch7.addConstraint([
    Sketcher.Constraint("Coincident", 0, 2, 1, 1),
    Sketcher.Constraint("Coincident", 1, 2, 2, 1),
    Sketcher.Constraint("Coincident", 2, 2, 3, 1),
    Sketcher.Constraint("Coincident", 3, 2, 0, 1),
    Sketcher.Constraint("Horizontal", 0),
    Sketcher.Constraint("Vertical", 1),
    Sketcher.Constraint("Horizontal", 2),
    Sketcher.Constraint("Vertical", 3),
    Sketcher.Constraint("DistanceX", 0, 2, 0, 1, 7.5),
    Sketcher.Constraint("DistanceY", 1, 1, 1, 2, 2.5),
    Sketcher.Constraint("DistanceX", -1, 1, 0, 2, 3.0),
    Sketcher.Constraint("DistanceY", 0, 2, -1, 1, 55.0),
])
sketch7.setExpression("Constraints[8]", "Params.sketch7_width")
sketch7.setExpression("Constraints[9]", "Params.sketch7_height")
pocket4 = body.newObject("PartDesign::Pocket", "Pocket003")
pocket4.Profile = sketch7
pocket4.setExpression("Length", "Params.pocket4_length")
pocket4.Reversed = True
doc.recompute()

fillet2 = body.newObject("PartDesign::Fillet", "Fillet001")
fillet2.Base = (pocket4, edges_at(pocket4, [(-47.5, 3, -55)]))
fillet2.setExpression("Radius", "Params.fillet2_radius")
doc.recompute()

fillet3 = body.newObject("PartDesign::Fillet", "Fillet002")
fillet3.Base = (fillet2, edges_at(fillet2, [(-47.5, 13, -60)]))
fillet3.setExpression("Radius", "Params.fillet3_radius")

# Sketch on XZ plane
sketch8 = body.newObject("Sketcher::SketchObject", "Sketch007")
sketch8.AttachmentSupport = (doc.getObject("XZ_Plane"), [""])
sketch8.MapMode = "FlatFace"
sketch8.AttachmentOffset = App.Placement(Vector(0, 0, -3), App.Rotation())
sketch8.addGeometry([
    Part.LineSegment(Vector(58, -34.5, 0), Vector(-58, -34.5, 0)),  # 0
    Part.ArcOfCircle(Part.Circle(Vector(-58, -32.5, 0), Vector(0, 0, 1), 2), math.radians(-180), math.radians(-90)),  # 1
    Part.LineSegment(Vector(-60, -32.5, 0), Vector(-60, -31.5, 0)),  # 2
    Part.ArcOfCircle(Part.Circle(Vector(-58, -31.5, 0), Vector(0, 0, 1), 2), math.radians(90), math.radians(180)),  # 3
    Part.LineSegment(Vector(-58, -29.5, 0), Vector(58, -29.5, 0)),  # 4
    Part.ArcOfCircle(Part.Circle(Vector(58, -31.5, 0), Vector(0, 0, 1), 2), math.radians(0), math.radians(90)),  # 5
    Part.LineSegment(Vector(60, -31.5, 0), Vector(60, -32.5, 0)),  # 6
    Part.ArcOfCircle(Part.Circle(Vector(58, -32.5, 0), Vector(0, 0, 1), 2), math.radians(-90), math.radians(0)),  # 7
], False)
sketch8.addConstraint([
    Sketcher.Constraint("Tangent", 0, 2, 1, 2),
    Sketcher.Constraint("Tangent", 1, 1, 2, 1),
    Sketcher.Constraint("Tangent", 2, 2, 3, 2),
    Sketcher.Constraint("Tangent", 3, 1, 4, 1),
    Sketcher.Constraint("Tangent", 4, 2, 5, 2),
    Sketcher.Constraint("Tangent", 5, 1, 6, 1),
    Sketcher.Constraint("Tangent", 6, 2, 7, 2),
    Sketcher.Constraint("Tangent", 7, 1, 0, 1),
    Sketcher.Constraint("Horizontal", 0),
    Sketcher.Constraint("Vertical", 2),
    Sketcher.Constraint("Horizontal", 4),
    Sketcher.Constraint("Vertical", 6),
    Sketcher.Constraint("Equal", 1, 3),
    Sketcher.Constraint("Equal", 3, 5),
    Sketcher.Constraint("Equal", 5, 7),
    Sketcher.Constraint("Radius", 1, 2.0),
    Sketcher.Constraint("DistanceX", 0, 2, 0, 1, 116.0),
    Sketcher.Constraint("DistanceY", 2, 1, 2, 2, 1.0),
    Sketcher.Constraint("DistanceX", 1, 3, -1, 1, 58.0),
    Sketcher.Constraint("DistanceY", 1, 3, -1, 1, 32.5),
])
sketch8.setExpression("Constraints[15]", "Params.sketch8_radius")
sketch8.setExpression("Constraints[16]", "Params.sketch8_width")
sketch8.setExpression("Constraints[17]", "Params.sketch8_height")
pocket5 = body.newObject("PartDesign::Pocket", "Pocket004")
pocket5.Profile = sketch8
pocket5.setExpression("Length", "Params.pocket5_length")
pocket5.Reversed = True
doc.recompute()

mirrored = body.newObject("PartDesign::Mirrored", "Mirrored")
mirrored.Originals = [pocket5]
mirrored.MirrorPlane = (doc.getObject("XY_Plane"), [""])
body.Tip = mirrored
doc.recompute()

mirrored2 = body.newObject("PartDesign::Mirrored", "Mirrored001")
mirrored2.Originals = [pad3, pocket4]
mirrored2.MirrorPlane = (doc.getObject("YZ_Plane"), [""])
body.Tip = mirrored2
doc.recompute()

fillet4 = body.newObject("PartDesign::Fillet", "Fillet003")
fillet4.Base = (mirrored2, edges_at(mirrored2, [(47.5, 3, -55)]))
fillet4.setExpression("Radius", "Params.fillet4_radius")
doc.recompute()

fillet5 = body.newObject("PartDesign::Fillet", "Fillet004")
fillet5.Base = (fillet4, edges_at(fillet4, [(47.5, 13, -60)]))
fillet5.setExpression("Radius", "Params.fillet5_radius")

# Sketch on XZ plane
sketch9 = body.newObject("Sketcher::SketchObject", "Sketch008")
sketch9.AttachmentSupport = (doc.getObject("XZ_Plane"), [""])
sketch9.MapMode = "FlatFace"
sketch9.AttachmentOffset = App.Placement(Vector(0, 0, -3), App.Rotation())
sketch9.addGeometry(Part.Circle(Vector(85, 45, 0), Vector(0, 0, 1), 2.5), False)
sketch9.addConstraint([
    Sketcher.Constraint("Diameter", 0, 5.0),
    Sketcher.Constraint("DistanceX", -1, 1, 0, 3, 85.0),
    Sketcher.Constraint("DistanceY", -1, 1, 0, 3, 45.0),
])
sketch9.setExpression("Constraints[0]", "Params.sketch9_diameter")
pocket6 = body.newObject("PartDesign::Pocket", "Pocket005")
pocket6.Profile = sketch9
pocket6.setExpression("Length", "Params.pocket6_length")
pocket6.Reversed = True
doc.recompute()

mirrored3 = body.newObject("PartDesign::Mirrored", "Mirrored002")
mirrored3.Originals = [pocket6]
mirrored3.MirrorPlane = (doc.getObject("YZ_Plane"), [""])
body.Tip = mirrored3
doc.recompute()

mirrored4 = body.newObject("PartDesign::Mirrored", "Mirrored003")
mirrored4.Originals = [pocket6]
mirrored4.MirrorPlane = (doc.getObject("XY_Plane"), [""])
body.Tip = mirrored4

# Sketch on XZ plane
sketch10 = body.newObject("Sketcher::SketchObject", "Sketch009")
sketch10.AttachmentSupport = (doc.getObject("XZ_Plane"), [""])
sketch10.MapMode = "FlatFace"
sketch10.AttachmentOffset = App.Placement(Vector(0, 0, -3), App.Rotation())
sketch10.addGeometry(Part.Circle(Vector(-85, -45, 0), Vector(0, 0, 1), 2.5), False)
sketch10.addConstraint([
    Sketcher.Constraint("Diameter", 0, 5.0),
    Sketcher.Constraint("DistanceX", 0, 3, -1, 1, 85.0),
    Sketcher.Constraint("DistanceY", 0, 3, -1, 1, 45.0),
])
sketch10.setExpression("Constraints[0]", "Params.sketch10_diameter")
pocket7 = body.newObject("PartDesign::Pocket", "Pocket006")
pocket7.Profile = sketch10
pocket7.setExpression("Length", "Params.pocket7_length")
pocket7.Reversed = True

doc.recompute()
